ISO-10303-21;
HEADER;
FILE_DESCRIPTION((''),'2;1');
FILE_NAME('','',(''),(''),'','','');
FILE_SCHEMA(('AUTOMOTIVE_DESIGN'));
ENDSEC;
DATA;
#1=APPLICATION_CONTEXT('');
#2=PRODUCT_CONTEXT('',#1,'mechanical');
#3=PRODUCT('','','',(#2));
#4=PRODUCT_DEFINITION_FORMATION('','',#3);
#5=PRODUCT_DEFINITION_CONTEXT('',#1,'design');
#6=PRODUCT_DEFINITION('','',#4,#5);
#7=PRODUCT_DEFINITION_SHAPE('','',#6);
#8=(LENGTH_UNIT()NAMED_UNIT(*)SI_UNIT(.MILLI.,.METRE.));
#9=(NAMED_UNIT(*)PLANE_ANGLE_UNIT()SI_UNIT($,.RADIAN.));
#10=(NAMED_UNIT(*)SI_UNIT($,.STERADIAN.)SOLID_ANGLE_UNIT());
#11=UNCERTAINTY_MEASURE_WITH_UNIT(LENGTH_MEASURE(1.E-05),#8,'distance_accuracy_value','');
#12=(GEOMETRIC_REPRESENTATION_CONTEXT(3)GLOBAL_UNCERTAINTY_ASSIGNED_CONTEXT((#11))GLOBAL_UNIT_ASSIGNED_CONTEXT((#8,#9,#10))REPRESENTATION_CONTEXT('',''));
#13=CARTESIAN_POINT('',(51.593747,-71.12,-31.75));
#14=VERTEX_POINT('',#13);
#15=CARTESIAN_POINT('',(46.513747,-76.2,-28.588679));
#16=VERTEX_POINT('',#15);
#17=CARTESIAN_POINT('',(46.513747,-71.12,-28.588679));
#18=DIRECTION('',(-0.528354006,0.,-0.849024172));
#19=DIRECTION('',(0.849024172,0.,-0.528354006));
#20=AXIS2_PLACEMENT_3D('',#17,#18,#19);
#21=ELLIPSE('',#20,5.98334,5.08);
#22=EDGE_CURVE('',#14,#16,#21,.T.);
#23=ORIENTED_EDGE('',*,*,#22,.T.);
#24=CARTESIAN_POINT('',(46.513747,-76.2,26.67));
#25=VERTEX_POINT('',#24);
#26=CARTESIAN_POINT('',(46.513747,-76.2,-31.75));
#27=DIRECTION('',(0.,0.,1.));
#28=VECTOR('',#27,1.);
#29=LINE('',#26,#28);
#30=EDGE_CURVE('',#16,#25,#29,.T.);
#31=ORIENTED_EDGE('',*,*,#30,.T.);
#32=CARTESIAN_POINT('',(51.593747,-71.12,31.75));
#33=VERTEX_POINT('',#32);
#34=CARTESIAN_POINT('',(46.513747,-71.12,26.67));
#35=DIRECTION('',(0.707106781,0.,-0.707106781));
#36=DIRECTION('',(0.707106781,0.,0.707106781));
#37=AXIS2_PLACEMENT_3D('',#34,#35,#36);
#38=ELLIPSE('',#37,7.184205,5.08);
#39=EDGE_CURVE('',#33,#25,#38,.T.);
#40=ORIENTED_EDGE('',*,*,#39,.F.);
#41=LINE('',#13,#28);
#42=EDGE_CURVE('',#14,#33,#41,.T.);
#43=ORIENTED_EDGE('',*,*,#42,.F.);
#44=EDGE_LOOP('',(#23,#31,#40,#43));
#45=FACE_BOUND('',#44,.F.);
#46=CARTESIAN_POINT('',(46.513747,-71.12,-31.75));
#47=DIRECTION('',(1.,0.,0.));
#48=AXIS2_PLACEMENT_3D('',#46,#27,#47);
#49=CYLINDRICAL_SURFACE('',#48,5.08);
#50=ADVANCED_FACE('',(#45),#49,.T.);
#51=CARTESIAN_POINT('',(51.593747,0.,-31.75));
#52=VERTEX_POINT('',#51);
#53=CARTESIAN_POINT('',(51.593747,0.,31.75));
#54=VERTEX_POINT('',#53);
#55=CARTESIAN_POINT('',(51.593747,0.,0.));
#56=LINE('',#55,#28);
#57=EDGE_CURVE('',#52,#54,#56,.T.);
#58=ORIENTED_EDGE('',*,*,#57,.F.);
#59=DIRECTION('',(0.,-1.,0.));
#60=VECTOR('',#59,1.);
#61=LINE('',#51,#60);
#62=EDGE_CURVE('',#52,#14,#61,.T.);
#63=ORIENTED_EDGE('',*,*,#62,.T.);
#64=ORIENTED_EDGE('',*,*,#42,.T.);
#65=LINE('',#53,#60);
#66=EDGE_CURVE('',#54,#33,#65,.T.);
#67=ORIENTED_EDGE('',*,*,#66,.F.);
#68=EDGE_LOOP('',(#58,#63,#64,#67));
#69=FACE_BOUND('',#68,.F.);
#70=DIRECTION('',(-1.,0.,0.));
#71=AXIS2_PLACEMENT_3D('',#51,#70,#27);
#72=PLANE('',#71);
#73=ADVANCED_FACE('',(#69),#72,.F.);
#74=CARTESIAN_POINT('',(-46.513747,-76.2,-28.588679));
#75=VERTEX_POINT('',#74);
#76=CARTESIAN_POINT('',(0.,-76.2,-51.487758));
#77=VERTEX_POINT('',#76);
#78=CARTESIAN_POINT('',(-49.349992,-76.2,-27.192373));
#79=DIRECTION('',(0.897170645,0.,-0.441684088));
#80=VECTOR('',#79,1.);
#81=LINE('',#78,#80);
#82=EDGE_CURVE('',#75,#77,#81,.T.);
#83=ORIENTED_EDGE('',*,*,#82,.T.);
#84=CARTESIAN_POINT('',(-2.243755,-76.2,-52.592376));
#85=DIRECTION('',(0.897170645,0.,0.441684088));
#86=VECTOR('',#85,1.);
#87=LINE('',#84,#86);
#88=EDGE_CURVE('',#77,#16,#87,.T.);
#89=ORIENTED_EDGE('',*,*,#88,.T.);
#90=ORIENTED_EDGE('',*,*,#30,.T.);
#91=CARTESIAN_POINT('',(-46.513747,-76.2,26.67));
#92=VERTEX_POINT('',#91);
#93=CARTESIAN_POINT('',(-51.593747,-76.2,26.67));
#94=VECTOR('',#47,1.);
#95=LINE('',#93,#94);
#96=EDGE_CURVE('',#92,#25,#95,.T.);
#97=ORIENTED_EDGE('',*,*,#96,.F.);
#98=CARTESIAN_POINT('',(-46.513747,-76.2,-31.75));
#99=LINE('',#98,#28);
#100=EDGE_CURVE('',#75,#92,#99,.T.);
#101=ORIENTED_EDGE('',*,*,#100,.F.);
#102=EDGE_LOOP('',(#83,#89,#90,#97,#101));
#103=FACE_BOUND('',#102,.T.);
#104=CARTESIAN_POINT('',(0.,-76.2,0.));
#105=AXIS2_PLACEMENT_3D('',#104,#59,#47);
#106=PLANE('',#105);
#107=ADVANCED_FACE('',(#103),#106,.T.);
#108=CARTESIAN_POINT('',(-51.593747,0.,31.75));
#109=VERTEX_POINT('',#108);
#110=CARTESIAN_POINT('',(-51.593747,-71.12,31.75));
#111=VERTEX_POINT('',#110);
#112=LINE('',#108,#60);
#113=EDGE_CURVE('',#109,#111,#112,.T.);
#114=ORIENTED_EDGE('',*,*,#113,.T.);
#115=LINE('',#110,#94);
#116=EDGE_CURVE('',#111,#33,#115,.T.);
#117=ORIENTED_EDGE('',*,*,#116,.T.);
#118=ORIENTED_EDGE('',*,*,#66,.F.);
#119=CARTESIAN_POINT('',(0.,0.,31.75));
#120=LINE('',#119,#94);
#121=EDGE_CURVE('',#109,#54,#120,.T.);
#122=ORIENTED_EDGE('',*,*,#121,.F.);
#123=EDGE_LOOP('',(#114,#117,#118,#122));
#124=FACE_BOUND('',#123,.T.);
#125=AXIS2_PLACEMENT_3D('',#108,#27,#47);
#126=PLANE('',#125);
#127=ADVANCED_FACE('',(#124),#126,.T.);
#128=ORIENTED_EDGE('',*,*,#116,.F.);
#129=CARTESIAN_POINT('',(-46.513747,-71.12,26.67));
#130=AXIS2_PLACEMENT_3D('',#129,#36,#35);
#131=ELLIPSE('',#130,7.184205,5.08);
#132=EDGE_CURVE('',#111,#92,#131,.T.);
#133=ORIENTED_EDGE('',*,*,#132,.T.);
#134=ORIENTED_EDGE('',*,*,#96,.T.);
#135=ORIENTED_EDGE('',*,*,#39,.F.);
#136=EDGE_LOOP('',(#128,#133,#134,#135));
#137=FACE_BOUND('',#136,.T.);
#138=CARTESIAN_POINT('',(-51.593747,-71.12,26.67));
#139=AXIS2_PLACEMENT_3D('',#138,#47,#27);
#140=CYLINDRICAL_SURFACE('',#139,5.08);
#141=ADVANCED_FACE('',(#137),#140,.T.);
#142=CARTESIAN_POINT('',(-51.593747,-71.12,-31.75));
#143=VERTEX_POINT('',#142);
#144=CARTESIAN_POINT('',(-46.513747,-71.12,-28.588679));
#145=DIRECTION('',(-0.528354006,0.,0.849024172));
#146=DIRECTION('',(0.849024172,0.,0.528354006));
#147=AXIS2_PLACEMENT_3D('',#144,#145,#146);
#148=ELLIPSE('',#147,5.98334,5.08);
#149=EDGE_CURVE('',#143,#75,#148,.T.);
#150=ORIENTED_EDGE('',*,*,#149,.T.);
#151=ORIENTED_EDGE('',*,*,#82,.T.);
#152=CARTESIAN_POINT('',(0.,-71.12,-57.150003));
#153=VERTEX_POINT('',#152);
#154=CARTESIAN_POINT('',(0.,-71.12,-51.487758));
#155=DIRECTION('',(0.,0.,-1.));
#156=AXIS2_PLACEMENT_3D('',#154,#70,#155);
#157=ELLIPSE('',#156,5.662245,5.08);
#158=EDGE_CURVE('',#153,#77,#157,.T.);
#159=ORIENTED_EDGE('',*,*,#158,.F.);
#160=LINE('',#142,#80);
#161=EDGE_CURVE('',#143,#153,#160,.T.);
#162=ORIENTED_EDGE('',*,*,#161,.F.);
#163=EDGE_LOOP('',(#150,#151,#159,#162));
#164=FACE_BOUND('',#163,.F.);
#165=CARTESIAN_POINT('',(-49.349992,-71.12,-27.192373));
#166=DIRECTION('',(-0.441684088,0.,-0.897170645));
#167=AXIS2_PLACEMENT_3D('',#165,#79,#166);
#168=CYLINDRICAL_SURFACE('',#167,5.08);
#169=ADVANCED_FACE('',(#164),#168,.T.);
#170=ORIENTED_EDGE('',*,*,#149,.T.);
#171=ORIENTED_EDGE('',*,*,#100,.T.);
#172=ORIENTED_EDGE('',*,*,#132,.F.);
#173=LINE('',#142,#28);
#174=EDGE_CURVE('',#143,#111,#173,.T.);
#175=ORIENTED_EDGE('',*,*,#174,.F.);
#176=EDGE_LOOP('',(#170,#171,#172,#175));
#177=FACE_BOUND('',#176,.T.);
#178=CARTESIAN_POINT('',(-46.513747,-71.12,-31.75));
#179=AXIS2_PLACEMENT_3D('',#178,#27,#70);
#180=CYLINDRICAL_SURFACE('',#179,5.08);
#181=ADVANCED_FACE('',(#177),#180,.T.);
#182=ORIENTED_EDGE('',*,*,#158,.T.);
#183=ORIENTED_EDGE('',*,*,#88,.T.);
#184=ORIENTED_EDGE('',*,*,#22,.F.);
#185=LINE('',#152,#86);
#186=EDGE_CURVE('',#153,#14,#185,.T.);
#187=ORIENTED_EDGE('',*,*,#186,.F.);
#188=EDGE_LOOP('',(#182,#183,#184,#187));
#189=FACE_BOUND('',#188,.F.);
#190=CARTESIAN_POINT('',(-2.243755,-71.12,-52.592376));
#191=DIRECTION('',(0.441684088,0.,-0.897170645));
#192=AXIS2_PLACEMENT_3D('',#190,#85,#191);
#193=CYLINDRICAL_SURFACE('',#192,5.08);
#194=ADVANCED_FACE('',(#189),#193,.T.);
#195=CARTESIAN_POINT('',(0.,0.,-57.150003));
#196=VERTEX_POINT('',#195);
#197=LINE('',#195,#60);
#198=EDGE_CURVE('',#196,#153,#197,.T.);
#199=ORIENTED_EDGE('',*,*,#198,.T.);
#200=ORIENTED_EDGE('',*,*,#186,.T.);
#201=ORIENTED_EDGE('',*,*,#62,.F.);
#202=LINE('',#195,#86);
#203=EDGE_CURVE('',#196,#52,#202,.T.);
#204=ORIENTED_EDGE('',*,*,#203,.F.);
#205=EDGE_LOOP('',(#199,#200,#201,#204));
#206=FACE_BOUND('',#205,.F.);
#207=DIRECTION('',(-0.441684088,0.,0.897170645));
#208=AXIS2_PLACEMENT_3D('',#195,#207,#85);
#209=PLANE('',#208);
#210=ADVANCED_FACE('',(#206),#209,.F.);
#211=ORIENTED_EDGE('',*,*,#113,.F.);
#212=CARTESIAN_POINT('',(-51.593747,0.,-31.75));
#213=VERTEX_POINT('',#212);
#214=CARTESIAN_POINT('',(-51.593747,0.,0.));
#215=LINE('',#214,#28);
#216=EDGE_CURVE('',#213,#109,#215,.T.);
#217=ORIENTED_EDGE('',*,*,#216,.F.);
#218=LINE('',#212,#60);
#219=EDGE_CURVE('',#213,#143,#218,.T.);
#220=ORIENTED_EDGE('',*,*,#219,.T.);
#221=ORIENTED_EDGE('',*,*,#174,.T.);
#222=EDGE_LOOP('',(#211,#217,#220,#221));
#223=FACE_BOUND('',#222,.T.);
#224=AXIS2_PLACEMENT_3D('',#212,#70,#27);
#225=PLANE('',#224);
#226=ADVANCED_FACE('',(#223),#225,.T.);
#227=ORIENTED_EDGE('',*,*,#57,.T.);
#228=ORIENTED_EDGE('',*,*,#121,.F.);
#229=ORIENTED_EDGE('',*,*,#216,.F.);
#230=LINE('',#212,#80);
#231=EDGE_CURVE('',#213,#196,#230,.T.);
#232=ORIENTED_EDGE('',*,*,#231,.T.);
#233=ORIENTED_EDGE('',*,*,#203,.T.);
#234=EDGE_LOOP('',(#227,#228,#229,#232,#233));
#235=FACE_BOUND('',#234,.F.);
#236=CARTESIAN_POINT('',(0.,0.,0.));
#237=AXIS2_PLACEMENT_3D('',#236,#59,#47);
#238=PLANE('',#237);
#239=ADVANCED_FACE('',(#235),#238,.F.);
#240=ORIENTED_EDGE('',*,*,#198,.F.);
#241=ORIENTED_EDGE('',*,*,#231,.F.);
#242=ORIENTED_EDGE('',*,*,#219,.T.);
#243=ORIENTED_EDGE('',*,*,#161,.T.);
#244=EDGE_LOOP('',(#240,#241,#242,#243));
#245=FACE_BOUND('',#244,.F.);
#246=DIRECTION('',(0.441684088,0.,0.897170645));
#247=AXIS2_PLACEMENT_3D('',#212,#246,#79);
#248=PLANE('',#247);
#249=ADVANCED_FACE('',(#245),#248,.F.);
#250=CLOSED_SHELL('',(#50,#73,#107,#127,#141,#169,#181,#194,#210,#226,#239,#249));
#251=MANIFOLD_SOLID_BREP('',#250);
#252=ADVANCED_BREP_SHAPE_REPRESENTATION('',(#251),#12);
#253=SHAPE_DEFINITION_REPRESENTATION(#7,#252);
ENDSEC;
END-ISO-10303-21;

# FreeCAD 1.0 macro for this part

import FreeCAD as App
import Part
import Sketcher
Q = App.Units.Quantity


def edges_at(feature, points):
    """Names of the edges that pass closest to the given points."""
    edges = feature.Shape.Edges
    near = lambda p: min(range(len(edges)), key=lambda i: edges[i].distToShape(Part.Vertex(*p))[0])
    return sorted({f"Edge{near(p) + 1}" for p in points})


def add_polygon(sketch, points):
    """Adds a closed chain of lines whose ends are joined by coincident constraints."""
    first, n = sketch.GeometryCount, len(points)
    for a, b in zip(points, points[1:] + points[:1]):
        sketch.addGeometry(Part.LineSegment(App.Vector(*a, 0), App.Vector(*b, 0)), False)
    for i in range(n):
        sketch.addConstraint(Sketcher.Constraint("Coincident", first + i, 2, first + (i + 1) % n, 1))

doc = App.newDocument("Part")
body = doc.addObject("PartDesign::Body", "Body")

sketch1 = body.newObject("Sketcher::SketchObject", "Sketch")
sketch1.AttachmentSupport = (doc.getObject("XZ_Plane"), [""])
sketch1.MapMode = "FlatFace"
add_polygon(sketch1, [(-52, 32), (-52, -32), (0, -57), (52, -32), (52, 32)])
sketch1.addConstraint([
    Sketcher.Constraint("Vertical", 0),
    Sketcher.Constraint("Vertical", 3),
    Sketcher.Constraint("Horizontal", 4),
    Sketcher.Constraint("Symmetric", 0, 2, 3, 2, -1, 1),
    Sketcher.Constraint("PointOnObject", 1, 2, -2),
    Sketcher.Constraint("Horizontal", 0, 2, 2, 2),
    Sketcher.Constraint("DistanceY", 0, 2, 0, 1, Q("2.5 in")),
    Sketcher.Constraint("DistanceY", 1, 2, 0, 2, Q("1.0000001 in")),
    Sketcher.Constraint("DistanceX", 0, 2, -1, 1, Q("2.0312499 in")),
])
pad1 = body.newObject("PartDesign::Pad", "Pad")
pad1.Profile = sketch1
pad1.Length = Q("3 in")
doc.recompute()

fillet = body.newObject("PartDesign::Fillet", "Fillet")
fillet.Base = (pad1, edges_at(pad1, [
    (0, -76.2, 31.75),
    (-51.594, -76.2, 0),
    (-25.797, -76.2, -44.45),
    (25.797, -76.2, -44.45),
    (51.594, -76.2, 0),
]))
fillet.Radius = Q("0.2 in")

doc.recompute()
